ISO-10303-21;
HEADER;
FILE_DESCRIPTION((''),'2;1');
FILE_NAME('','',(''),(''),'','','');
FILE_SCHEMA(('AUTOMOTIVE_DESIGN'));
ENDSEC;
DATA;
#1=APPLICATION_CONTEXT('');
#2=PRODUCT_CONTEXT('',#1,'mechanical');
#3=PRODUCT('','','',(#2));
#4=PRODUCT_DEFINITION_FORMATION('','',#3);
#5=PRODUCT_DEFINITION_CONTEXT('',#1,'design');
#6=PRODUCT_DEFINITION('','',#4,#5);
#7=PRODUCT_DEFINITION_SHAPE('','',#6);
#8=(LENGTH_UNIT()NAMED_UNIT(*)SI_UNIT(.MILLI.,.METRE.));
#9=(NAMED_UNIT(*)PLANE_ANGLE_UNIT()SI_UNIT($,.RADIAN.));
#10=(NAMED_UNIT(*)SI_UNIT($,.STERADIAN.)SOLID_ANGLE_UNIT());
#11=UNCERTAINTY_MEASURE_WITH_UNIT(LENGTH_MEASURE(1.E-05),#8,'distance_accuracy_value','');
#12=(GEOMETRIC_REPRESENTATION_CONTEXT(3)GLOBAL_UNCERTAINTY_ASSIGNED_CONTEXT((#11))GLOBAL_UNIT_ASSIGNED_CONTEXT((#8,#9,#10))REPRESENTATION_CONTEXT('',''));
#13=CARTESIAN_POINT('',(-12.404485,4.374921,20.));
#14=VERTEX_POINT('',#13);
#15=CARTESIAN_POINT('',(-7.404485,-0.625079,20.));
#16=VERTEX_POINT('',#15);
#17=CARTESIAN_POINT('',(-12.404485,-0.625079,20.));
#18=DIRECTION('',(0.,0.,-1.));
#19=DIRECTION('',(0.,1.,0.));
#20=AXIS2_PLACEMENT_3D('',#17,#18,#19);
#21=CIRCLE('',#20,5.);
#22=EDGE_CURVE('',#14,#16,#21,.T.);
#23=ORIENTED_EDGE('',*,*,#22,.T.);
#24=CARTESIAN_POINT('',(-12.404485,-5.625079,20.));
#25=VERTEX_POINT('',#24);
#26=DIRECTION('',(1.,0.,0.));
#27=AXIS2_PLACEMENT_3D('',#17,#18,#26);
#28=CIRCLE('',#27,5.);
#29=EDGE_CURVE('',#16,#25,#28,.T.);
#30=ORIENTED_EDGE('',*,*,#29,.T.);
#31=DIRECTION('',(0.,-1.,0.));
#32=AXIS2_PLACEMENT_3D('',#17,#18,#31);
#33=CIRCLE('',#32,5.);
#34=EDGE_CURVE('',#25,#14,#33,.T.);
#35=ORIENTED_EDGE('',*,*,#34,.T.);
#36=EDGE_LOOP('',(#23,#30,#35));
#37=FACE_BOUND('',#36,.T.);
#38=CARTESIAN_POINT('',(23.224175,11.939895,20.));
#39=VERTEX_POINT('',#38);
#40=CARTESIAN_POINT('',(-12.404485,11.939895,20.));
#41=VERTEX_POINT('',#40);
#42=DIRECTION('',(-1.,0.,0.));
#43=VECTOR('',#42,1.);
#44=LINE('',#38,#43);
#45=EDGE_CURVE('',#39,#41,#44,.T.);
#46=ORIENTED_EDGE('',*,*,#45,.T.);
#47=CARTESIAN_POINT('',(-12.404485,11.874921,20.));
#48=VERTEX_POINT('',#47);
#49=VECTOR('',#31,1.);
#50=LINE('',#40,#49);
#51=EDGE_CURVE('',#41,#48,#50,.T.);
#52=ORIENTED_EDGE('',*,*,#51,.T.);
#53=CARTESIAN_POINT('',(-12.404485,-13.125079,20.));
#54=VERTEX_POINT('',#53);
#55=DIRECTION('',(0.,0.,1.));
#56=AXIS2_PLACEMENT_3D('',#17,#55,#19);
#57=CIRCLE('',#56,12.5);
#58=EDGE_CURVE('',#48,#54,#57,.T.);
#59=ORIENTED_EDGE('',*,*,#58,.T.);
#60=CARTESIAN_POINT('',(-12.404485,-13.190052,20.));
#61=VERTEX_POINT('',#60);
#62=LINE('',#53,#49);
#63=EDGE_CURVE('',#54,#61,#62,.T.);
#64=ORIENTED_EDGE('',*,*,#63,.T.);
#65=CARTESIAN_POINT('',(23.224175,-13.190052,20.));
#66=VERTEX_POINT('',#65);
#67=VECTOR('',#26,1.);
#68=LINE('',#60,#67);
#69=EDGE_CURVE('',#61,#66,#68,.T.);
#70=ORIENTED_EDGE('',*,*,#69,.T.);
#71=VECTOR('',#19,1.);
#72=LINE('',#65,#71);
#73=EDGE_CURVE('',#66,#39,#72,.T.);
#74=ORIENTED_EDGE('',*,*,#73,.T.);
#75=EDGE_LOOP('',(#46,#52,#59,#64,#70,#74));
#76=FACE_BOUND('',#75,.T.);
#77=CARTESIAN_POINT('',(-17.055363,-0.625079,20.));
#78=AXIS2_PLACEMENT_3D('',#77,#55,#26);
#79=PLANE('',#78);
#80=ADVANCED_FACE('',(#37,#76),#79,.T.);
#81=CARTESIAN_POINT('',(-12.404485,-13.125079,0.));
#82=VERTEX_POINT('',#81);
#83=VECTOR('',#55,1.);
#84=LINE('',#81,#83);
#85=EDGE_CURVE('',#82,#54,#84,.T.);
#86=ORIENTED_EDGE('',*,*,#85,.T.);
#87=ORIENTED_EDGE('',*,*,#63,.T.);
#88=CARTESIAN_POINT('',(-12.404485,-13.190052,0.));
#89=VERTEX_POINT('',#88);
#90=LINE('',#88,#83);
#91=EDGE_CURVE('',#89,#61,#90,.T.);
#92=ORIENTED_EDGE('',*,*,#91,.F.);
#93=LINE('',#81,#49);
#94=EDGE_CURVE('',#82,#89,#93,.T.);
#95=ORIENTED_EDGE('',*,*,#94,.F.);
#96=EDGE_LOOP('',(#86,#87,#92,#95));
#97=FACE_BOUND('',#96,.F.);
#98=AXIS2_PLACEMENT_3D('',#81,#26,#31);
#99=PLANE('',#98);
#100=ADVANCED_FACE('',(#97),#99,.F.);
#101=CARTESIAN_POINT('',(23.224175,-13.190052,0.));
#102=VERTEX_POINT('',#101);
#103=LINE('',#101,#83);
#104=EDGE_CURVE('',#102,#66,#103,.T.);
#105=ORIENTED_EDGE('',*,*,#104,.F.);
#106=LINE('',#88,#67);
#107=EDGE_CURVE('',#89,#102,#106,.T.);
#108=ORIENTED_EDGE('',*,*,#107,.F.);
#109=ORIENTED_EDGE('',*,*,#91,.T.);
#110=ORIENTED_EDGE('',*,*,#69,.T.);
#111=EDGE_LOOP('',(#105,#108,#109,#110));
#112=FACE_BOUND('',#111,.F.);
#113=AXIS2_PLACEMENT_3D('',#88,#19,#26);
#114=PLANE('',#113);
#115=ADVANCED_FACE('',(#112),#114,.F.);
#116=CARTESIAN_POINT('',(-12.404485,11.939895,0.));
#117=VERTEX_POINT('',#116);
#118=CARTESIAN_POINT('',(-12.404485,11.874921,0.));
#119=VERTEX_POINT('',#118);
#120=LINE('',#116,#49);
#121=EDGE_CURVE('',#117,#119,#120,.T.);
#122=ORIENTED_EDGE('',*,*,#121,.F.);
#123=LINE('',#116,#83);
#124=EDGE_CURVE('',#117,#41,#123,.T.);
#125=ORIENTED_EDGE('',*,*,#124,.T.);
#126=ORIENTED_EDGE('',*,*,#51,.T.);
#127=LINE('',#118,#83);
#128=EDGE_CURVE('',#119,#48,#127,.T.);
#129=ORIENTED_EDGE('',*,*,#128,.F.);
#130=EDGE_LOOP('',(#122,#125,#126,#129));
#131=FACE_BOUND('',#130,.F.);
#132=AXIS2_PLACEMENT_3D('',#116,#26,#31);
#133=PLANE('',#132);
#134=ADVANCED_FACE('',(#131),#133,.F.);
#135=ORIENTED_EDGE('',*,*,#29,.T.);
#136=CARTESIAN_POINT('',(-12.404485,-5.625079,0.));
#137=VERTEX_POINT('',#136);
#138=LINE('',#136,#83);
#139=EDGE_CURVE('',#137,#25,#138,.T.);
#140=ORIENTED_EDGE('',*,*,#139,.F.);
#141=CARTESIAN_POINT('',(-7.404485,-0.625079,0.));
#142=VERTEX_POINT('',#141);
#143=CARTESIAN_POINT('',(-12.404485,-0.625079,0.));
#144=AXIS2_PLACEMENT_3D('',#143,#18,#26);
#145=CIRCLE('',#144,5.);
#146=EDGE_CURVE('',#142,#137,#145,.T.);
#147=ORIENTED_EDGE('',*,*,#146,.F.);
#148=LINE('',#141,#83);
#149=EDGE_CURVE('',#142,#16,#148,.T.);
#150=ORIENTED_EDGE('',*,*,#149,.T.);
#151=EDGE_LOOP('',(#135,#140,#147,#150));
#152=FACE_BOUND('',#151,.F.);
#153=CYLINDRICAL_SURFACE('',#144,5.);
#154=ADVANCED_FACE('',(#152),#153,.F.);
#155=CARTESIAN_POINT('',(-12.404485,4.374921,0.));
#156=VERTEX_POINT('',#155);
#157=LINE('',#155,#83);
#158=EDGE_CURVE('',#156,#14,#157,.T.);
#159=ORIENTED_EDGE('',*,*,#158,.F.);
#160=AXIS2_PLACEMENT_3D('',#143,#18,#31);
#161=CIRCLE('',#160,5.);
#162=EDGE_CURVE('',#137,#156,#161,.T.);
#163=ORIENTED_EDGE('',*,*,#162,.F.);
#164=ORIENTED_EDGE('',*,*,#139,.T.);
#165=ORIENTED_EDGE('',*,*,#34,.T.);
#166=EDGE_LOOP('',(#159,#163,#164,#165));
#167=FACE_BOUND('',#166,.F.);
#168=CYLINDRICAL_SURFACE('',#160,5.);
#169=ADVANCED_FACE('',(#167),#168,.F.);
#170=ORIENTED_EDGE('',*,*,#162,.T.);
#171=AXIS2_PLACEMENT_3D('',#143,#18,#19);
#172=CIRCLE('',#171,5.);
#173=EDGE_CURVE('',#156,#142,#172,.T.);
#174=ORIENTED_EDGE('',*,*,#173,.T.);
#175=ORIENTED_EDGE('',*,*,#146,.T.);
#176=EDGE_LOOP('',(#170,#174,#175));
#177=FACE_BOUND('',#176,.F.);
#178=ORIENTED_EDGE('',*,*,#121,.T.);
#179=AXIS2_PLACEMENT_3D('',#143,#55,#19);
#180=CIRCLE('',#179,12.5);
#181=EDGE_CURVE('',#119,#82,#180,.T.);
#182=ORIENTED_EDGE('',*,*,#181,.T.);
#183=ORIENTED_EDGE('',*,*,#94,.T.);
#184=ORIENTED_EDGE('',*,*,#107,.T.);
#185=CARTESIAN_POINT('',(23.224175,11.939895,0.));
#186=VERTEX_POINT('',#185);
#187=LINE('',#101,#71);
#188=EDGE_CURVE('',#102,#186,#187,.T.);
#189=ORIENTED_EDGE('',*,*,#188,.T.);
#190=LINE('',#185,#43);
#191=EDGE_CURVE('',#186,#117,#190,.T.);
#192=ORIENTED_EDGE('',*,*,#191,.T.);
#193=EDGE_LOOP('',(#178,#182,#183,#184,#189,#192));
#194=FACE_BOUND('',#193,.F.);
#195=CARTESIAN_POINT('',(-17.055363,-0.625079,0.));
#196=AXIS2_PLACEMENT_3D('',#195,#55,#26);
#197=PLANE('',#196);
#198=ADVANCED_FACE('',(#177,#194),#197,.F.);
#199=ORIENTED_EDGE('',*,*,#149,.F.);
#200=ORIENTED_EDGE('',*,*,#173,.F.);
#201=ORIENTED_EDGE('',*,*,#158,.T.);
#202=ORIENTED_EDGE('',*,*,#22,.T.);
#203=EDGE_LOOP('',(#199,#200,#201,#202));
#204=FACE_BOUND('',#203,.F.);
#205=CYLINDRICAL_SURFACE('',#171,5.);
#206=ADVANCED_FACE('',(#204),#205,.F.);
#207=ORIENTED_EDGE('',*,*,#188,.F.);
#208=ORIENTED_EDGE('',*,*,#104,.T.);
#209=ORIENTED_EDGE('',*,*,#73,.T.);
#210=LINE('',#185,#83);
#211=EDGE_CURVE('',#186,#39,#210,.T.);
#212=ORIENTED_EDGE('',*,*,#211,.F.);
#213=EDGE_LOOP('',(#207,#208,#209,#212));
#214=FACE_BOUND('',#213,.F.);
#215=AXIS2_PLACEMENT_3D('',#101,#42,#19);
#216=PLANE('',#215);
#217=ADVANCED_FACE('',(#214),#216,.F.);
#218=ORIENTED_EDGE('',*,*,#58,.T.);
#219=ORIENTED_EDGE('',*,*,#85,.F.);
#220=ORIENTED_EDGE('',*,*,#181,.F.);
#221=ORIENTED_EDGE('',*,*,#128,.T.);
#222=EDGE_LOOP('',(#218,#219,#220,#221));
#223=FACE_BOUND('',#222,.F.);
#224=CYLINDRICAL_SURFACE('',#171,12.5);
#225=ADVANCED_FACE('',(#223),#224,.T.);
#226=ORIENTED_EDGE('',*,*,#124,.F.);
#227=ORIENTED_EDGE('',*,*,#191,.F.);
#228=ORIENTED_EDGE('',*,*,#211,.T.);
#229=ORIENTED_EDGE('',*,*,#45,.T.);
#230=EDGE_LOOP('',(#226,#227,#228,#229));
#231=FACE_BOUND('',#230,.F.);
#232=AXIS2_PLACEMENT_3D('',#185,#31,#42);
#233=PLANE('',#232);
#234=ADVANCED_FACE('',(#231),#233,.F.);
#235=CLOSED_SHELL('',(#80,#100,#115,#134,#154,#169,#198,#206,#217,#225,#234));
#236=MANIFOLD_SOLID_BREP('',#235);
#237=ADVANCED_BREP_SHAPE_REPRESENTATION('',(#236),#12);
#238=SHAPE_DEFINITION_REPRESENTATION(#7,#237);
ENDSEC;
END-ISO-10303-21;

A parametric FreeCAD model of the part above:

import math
import FreeCAD as App
import Part
import Sketcher

V = App.Vector

doc = App.newDocument("Part")
body = doc.addObject("PartDesign::Body", "Body")

# Sketch on XY plane
sketch1 = body.newObject("Sketcher::SketchObject", "Sketch")
sketch1.AttachmentSupport = (doc.getObject("XY_Plane"), [""])
sketch1.MapMode = "FlatFace"
sketch1.addGeometry(Part.ArcOfCircle(Part.Circle(V(-12.4, -0.63, 0), V(0, 0, 1), 12.5), math.radians(90), math.radians(270)), False)
sketch1.addGeometry(Part.LineSegment(V(-12.4, -13.13, 0), V(-12.4, -13.19, 0)), False)
sketch1.addGeometry(Part.LineSegment(V(-12.4, -13.19, 0), V(23.22, -13.19, 0)), False)
sketch1.addGeometry(Part.LineSegment(V(23.22, -13.19, 0), V(23.22, 11.94, 0)), False)
sketch1.addGeometry(Part.LineSegment(V(23.22, 11.94, 0), V(-12.4, 11.94, 0)), False)
sketch1.addGeometry(Part.LineSegment(V(-12.4, 11.94, 0), V(-12.4, 11.87, 0)), False)
sketch1.addGeometry(Part.ArcOfCircle(Part.Circle(V(-12.4, -0.63, 0), V(0, 0, 1), 5), math.radians(90), math.radians(270)), False)
sketch1.addGeometry(Part.ArcOfCircle(Part.Circle(V(-12.4, -0.63, 0), V(0, 0, 1), 5), math.radians(0), math.radians(90)), False)
sketch1.addGeometry(Part.ArcOfCircle(Part.Circle(V(-12.4, -0.63, 0), V(0, 0, 1), 5), math.radians(-90), math.radians(0)), False)
sketch1.addConstraint(Sketcher.Constraint("Coincident", 0, 2, 1, 1))
sketch1.addConstraint(Sketcher.Constraint("Coincident", 1, 2, 2, 1))
sketch1.addConstraint(Sketcher.Constraint("Coincident", 2, 2, 3, 1))
sketch1.addConstraint(Sketcher.Constraint("Coincident", 3, 2, 4, 1))
sketch1.addConstraint(Sketcher.Constraint("Coincident", 4, 2, 5, 1))
sketch1.addConstraint(Sketcher.Constraint("Coincident", 5, 2, 0, 1))
sketch1.addConstraint(Sketcher.Constraint("Tangent", 6, 1, 7, 2))
sketch1.addConstraint(Sketcher.Constraint("Tangent", 7, 1, 8, 2))
sketch1.addConstraint(Sketcher.Constraint("Tangent", 8, 1, 6, 2))
sketch1.addConstraint(Sketcher.Constraint("Vertical", 1))
sketch1.addConstraint(Sketcher.Constraint("Horizontal", 2))
sketch1.addConstraint(Sketcher.Constraint("Vertical", 3))
sketch1.addConstraint(Sketcher.Constraint("Horizontal", 4))
sketch1.addConstraint(Sketcher.Constraint("Vertical", 5))
sketch1.addConstraint(Sketcher.Constraint("Coincident", 6, 3, 0, 3))
sketch1.addConstraint(Sketcher.Constraint("Horizontal", 8, 3, 7, 1))
sketch1.addConstraint(Sketcher.Constraint("Vertical", 8, 3, 0, 2))
sketch1.addConstraint(Sketcher.Constraint("Vertical", 1, 2, 4, 2))
sketch1.addConstraint(Sketcher.Constraint("Vertical", 5, 2, 6, 1))
sketch1.addConstraint(Sketcher.Constraint("Vertical", 6, 1, 8, 1))
sketch1.addConstraint(Sketcher.Constraint("Equal", 1, 5))
sketch1.addConstraint(Sketcher.Constraint("Radius", 6, 5.0))
sketch1.addConstraint(Sketcher.Constraint("Radius", 0, 12.5))
sketch1.addConstraint(Sketcher.Constraint("DistanceX", 2, 1, 2, 2, 35.628661))
sketch1.addConstraint(Sketcher.Constraint("DistanceY", 1, 2, 1, 1, 0.064974))
sketch1.addConstraint(Sketcher.Constraint("DistanceY", 0, 3, -1, 1, 0.625079))
sketch1.addConstraint(Sketcher.Constraint("DistanceX", 0, 3, -1, 1, 12.404485))
pad1 = body.newObject("PartDesign::Pad", "Pad")
pad1.Profile = sketch1
pad1.Length = 20

doc.recompute()
